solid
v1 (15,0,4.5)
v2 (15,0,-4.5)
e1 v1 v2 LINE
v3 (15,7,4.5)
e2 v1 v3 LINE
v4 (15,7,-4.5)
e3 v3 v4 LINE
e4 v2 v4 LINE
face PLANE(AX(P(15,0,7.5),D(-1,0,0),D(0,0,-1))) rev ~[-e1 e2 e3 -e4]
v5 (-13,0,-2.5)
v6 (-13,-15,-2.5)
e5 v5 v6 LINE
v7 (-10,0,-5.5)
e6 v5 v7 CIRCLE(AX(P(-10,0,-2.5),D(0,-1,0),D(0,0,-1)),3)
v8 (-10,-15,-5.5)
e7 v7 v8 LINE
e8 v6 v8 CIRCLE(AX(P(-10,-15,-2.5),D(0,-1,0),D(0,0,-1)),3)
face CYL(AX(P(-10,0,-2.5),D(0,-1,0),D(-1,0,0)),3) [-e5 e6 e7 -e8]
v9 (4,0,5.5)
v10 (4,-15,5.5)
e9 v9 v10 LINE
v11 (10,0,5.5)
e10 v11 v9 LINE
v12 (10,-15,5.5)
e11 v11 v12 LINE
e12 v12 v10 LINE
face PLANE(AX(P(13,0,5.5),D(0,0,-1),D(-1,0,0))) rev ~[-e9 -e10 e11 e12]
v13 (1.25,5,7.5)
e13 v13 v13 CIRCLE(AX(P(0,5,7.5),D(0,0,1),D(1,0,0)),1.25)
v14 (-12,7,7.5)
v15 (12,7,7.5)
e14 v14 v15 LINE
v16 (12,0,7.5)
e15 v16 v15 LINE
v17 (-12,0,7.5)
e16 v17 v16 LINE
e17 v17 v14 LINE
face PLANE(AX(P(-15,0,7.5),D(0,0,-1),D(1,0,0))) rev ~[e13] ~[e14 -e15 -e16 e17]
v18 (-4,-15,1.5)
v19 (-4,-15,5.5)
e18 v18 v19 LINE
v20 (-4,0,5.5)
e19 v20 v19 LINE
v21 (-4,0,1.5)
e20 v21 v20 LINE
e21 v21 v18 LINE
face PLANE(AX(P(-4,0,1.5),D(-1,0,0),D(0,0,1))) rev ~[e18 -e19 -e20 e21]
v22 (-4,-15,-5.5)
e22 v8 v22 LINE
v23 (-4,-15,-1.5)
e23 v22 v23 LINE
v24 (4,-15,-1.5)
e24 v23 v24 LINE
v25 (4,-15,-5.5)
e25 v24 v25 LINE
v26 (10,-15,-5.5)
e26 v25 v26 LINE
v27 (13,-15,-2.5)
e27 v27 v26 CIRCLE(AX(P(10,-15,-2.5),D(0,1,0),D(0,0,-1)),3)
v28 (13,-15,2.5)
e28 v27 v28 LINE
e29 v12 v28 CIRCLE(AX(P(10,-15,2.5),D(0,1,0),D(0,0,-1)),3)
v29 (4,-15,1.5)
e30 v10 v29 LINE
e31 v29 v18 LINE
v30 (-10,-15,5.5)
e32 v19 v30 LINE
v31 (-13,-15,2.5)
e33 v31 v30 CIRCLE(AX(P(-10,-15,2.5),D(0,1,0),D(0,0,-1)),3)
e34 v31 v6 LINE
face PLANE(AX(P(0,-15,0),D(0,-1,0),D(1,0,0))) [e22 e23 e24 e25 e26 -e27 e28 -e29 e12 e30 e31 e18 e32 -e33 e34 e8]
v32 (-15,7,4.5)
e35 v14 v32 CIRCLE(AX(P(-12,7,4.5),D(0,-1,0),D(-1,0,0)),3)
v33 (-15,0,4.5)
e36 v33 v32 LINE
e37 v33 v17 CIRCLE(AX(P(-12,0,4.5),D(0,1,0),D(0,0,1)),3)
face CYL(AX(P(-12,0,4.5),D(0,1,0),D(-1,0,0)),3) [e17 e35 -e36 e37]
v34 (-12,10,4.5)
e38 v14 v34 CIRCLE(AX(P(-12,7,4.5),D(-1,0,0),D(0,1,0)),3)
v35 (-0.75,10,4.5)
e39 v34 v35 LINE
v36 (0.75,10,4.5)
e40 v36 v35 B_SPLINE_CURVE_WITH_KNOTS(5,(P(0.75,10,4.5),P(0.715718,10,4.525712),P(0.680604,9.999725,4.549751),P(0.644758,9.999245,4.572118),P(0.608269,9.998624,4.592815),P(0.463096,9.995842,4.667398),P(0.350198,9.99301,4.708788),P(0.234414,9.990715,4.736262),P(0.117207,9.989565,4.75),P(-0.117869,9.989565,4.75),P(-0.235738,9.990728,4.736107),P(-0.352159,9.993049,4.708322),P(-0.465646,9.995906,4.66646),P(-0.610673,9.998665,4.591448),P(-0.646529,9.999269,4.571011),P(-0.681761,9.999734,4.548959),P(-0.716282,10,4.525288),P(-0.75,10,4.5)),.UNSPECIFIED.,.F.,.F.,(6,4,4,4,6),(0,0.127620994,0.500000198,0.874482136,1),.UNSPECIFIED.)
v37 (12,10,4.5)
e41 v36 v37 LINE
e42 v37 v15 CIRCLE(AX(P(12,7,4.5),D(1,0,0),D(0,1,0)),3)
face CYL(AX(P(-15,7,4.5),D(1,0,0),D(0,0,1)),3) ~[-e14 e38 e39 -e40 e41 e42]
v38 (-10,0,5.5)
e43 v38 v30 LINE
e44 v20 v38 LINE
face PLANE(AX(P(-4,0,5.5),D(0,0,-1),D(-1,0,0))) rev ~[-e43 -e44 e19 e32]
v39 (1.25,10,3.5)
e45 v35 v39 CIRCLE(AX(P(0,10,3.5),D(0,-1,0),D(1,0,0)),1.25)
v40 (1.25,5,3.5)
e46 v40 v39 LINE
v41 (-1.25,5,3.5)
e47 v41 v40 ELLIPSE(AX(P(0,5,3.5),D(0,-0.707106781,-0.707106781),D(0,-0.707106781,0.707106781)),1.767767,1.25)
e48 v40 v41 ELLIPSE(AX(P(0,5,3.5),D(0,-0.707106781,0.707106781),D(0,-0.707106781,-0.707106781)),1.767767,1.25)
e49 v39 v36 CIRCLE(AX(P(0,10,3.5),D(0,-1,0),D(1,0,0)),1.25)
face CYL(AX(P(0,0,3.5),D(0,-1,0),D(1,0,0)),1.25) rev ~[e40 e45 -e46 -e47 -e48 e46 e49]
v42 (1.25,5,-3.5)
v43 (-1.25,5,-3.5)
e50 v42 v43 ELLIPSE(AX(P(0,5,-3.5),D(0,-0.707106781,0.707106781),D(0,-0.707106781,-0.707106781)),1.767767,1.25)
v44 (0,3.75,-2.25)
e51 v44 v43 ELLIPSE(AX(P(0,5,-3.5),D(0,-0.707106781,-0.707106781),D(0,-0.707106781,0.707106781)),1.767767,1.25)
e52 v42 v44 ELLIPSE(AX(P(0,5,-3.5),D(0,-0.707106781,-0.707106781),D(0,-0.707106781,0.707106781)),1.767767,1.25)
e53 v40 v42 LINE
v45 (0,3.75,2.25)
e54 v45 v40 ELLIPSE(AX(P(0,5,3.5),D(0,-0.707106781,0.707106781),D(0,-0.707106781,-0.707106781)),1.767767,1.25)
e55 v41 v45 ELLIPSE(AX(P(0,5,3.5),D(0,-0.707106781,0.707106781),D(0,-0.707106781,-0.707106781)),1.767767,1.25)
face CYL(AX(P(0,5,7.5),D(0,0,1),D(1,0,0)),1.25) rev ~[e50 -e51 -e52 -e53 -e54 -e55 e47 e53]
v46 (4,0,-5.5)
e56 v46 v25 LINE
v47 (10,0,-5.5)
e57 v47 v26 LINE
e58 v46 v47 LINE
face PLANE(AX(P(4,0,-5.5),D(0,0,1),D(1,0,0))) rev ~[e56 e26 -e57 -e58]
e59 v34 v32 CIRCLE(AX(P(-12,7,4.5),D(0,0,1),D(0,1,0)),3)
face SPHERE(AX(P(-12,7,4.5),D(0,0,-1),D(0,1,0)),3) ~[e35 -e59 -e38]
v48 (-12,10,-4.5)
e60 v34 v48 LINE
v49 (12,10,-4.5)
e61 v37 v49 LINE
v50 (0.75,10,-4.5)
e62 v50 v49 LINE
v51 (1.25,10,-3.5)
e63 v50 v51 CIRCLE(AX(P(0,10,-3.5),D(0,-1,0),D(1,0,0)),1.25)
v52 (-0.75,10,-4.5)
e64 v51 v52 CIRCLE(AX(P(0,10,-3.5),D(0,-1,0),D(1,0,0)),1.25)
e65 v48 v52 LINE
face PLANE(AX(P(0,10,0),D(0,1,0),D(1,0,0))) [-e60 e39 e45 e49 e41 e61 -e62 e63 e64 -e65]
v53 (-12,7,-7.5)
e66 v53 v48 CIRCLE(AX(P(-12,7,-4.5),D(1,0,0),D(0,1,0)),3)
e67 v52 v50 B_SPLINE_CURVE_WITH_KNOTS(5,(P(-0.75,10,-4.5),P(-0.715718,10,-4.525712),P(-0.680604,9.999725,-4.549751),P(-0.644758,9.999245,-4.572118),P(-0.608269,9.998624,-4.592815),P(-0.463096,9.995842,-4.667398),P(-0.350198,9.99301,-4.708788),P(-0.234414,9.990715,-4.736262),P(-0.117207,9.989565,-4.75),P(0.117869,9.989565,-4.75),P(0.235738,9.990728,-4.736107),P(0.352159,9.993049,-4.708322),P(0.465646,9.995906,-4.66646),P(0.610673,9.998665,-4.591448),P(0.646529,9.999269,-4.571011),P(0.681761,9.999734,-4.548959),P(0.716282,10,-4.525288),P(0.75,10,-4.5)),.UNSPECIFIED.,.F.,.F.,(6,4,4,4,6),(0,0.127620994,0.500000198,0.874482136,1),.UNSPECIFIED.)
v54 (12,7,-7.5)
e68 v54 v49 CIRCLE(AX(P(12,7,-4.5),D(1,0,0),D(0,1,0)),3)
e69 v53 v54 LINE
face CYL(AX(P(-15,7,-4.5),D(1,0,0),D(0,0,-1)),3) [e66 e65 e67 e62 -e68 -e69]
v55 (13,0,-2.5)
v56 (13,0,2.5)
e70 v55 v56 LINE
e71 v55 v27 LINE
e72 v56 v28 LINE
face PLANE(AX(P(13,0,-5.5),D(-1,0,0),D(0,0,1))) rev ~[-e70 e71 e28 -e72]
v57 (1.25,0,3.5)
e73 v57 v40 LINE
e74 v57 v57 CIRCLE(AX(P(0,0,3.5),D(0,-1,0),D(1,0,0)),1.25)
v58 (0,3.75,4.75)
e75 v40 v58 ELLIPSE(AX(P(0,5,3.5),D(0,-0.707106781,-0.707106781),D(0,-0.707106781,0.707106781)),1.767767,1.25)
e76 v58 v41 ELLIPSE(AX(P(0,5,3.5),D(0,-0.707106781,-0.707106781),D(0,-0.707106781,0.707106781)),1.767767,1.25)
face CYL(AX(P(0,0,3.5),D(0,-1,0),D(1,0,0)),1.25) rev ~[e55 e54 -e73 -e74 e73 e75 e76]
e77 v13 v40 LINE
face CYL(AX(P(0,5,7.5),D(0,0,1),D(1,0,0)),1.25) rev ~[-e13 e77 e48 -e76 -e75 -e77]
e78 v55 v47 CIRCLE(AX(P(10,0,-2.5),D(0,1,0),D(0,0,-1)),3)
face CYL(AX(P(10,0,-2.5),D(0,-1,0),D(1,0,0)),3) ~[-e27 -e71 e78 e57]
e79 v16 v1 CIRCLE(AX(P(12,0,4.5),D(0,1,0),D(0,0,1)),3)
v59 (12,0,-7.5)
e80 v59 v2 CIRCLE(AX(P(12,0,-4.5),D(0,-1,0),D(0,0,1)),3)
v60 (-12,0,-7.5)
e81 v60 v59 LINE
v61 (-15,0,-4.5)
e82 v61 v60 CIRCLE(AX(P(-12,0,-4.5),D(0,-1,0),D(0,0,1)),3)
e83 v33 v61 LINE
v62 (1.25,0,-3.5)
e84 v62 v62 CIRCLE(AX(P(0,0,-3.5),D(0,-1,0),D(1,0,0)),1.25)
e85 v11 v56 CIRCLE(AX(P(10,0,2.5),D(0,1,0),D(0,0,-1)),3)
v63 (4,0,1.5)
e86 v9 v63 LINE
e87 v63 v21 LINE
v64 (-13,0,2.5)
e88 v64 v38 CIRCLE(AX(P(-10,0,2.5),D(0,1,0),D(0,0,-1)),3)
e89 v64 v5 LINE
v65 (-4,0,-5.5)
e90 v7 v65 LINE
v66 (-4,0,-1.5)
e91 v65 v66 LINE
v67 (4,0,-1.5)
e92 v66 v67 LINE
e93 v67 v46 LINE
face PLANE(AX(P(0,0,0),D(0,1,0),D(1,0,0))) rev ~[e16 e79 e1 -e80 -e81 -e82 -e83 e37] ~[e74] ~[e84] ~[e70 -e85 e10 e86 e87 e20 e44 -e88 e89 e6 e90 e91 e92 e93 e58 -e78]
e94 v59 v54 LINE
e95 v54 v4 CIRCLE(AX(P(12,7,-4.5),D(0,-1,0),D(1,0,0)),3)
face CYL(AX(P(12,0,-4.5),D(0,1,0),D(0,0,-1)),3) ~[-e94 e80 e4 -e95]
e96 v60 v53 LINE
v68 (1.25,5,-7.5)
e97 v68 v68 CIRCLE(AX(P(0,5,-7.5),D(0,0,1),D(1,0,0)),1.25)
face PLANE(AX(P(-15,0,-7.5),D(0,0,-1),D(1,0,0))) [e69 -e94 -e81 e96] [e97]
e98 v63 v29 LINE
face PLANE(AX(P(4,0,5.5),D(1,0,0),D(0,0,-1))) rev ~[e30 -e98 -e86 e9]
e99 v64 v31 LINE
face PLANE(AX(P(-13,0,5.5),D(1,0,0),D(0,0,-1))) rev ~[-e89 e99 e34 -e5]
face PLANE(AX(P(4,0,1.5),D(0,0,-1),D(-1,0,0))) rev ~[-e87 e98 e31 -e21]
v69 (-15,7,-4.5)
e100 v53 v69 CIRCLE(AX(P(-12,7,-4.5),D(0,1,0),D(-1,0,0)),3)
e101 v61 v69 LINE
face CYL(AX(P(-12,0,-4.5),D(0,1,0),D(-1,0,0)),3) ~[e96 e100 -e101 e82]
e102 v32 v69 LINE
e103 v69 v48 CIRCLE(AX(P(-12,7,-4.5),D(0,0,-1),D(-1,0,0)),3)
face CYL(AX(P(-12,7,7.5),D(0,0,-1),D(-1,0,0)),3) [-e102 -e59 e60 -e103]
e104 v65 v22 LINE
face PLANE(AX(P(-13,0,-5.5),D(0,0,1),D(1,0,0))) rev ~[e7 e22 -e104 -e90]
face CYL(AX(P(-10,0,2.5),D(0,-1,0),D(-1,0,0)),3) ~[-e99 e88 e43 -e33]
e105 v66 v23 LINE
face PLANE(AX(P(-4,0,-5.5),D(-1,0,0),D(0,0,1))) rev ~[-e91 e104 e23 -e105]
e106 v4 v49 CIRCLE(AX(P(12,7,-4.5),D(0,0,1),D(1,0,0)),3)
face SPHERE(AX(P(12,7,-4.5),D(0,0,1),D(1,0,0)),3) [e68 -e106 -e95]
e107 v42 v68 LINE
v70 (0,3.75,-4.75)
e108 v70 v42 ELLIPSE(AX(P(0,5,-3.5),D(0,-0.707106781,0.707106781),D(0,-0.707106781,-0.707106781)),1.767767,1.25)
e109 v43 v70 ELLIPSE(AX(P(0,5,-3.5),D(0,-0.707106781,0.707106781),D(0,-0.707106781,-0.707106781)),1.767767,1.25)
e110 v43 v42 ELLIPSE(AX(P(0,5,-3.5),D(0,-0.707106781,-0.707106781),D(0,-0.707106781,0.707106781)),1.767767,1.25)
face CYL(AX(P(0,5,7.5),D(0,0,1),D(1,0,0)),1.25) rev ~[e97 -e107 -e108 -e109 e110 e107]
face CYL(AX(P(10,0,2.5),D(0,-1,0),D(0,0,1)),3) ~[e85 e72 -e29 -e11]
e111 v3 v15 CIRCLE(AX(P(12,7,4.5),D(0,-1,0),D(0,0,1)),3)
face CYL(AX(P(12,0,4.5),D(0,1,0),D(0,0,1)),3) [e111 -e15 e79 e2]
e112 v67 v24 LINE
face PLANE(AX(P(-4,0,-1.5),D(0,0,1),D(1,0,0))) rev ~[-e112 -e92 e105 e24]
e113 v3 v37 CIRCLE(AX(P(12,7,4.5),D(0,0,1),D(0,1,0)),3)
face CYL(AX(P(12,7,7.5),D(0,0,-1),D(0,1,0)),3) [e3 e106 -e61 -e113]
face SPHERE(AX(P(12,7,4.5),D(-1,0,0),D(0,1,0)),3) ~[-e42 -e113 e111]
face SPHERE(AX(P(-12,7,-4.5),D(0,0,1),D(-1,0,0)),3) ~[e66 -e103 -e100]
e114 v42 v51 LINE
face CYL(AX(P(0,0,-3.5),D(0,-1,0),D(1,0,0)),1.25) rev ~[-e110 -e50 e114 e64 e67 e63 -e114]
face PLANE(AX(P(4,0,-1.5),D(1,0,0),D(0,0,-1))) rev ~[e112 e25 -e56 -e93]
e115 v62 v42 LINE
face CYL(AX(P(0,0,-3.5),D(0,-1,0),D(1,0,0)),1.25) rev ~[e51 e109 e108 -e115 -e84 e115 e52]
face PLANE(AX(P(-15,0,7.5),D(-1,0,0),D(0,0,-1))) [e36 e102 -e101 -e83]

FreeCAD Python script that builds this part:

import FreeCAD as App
import Part
import Sketcher

V = App.Vector
Q = App.Units.Quantity


def edges_at(feature, points):
    """Names of the edges that pass closest to the given points."""
    edges = feature.Shape.Edges
    near = lambda p: min(range(len(edges)), key=lambda i: edges[i].distToShape(Part.Vertex(*p))[0])
    return sorted({f"Edge{near(p) + 1}" for p in points})


def add_polygon(sketch, points):
    """Adds a closed chain of lines whose ends are joined by coincident constraints."""
    first, n = sketch.GeometryCount, len(points)
    for a, b in zip(points, points[1:] + points[:1]):
        sketch.addGeometry(Part.LineSegment(App.Vector(*a, 0), App.Vector(*b, 0)), False)
    for i in range(n):
        sketch.addConstraint(Sketcher.Constraint("Coincident", first + i, 2, first + (i + 1) % n, 1))

doc = App.newDocument("Part")
body = doc.addObject("PartDesign::Body", "Body")

# Sketch on XZ plane
sketch1 = body.newObject("Sketcher::SketchObject", "Sketch")
sketch1.AttachmentSupport = (doc.getObject("XZ_Plane"), [""])
sketch1.MapMode = "FlatFace"
add_polygon(sketch1, [(-15, -8), (-15, 8), (15, 8), (15, -8)])  # lines 0-3
sketch1.addConstraint(Sketcher.Constraint("Vertical", 0))
sketch1.addConstraint(Sketcher.Constraint("Horizontal", 1))
sketch1.addConstraint(Sketcher.Constraint("Vertical", 2))
sketch1.addConstraint(Sketcher.Constraint("Horizontal", 3))
sketch1.addConstraint(Sketcher.Constraint("Symmetric", 0, 2, 2, 2, -1, 1))
sketch1.addConstraint(Sketcher.Constraint("DistanceX", 1, 1, 1, 2, Q("30 mm")))
sketch1.addConstraint(Sketcher.Constraint("DistanceY", 0, 1, 0, 2, Q("15 mm")))
pad1 = body.newObject("PartDesign::Pad", "Pad")
pad1.Profile = sketch1
pad1.Length = 10
pad1.Reversed = True

# Sketch on XZ plane
sketch2 = body.newObject("Sketcher::SketchObject", "Sketch001")
sketch2.AttachmentSupport = (doc.getObject("XZ_Plane"), [""])
sketch2.MapMode = "FlatFace"
add_polygon(sketch2, [(-13, -5.5), (-4, -5.5), (-4, -1.5), (4, -1.5), (4, -5.5), (13, -5.5), (13, 5.5), (4, 5.5), (4, 1.5), (-4, 1.5), (-4, 5.5), (-13, 5.5)])  # lines 0-11
sketch2.addConstraint(Sketcher.Constraint("Horizontal", 0))
sketch2.addConstraint(Sketcher.Constraint("Vertical", 1))
sketch2.addConstraint(Sketcher.Constraint("Horizontal", 2))
sketch2.addConstraint(Sketcher.Constraint("Vertical", 3))
sketch2.addConstraint(Sketcher.Constraint("Horizontal", 4))
sketch2.addConstraint(Sketcher.Constraint("Vertical", 5))
sketch2.addConstraint(Sketcher.Constraint("Horizontal", 6))
sketch2.addConstraint(Sketcher.Constraint("Vertical", 7))
sketch2.addConstraint(Sketcher.Constraint("Horizontal", 8))
sketch2.addConstraint(Sketcher.Constraint("Vertical", 9))
sketch2.addConstraint(Sketcher.Constraint("Horizontal", 10))
sketch2.addConstraint(Sketcher.Constraint("Vertical", 11))
sketch2.addConstraint(Sketcher.Constraint("Symmetric", 0, 2, 6, 2, -1, 1))
sketch2.addConstraint(Sketcher.Constraint("Symmetric", 2, 2, 8, 2, -1, 1))
sketch2.addConstraint(Sketcher.Constraint("Symmetric", 4, 2, 10, 2, -1, 1))
sketch2.addConstraint(Sketcher.Constraint("Symmetric", 0, 2, 3, 2, -2))
sketch2.addConstraint(Sketcher.Constraint("DistanceX", 0, 1, 0, 2, Q("9 mm")))
sketch2.addConstraint(Sketcher.Constraint("DistanceX", 2, 1, 2, 2, Q("8 mm")))
sketch2.addConstraint(Sketcher.Constraint("DistanceY", 1, 1, 1, 2, Q("4 mm")))
sketch2.addConstraint(Sketcher.Constraint("DistanceY", 5, 1, 5, 2, Q("11 mm")))
pad2 = body.newObject("PartDesign::Pad", "Pad001")
pad2.Profile = sketch2
pad2.Length = 15
doc.recompute()

fillet = body.newObject("PartDesign::Fillet", "Fillet")
fillet.Base = (pad2, edges_at(pad2, [
    (-15, 10, 0),
    (0, 10, 7.5),
    (13, -7.5, 5.5),
    (-13, -7.5, 5.5),
    (-13, -7.5, -5.5),
    (13, -7.5, -5.5),
    (15, 10, 0),
    (15, 5, 7.5),
    (-15, 5, 7.5),
    (-15, 5, -7.5),
    (15, 5, -7.5),
    (0, 10, -7.5),
]))
fillet.Radius = 3

# Sketch on XZ plane
sketch3 = body.newObject("Sketcher::SketchObject", "Sketch002")
sketch3.AttachmentSupport = (doc.getObject("XZ_Plane"), [""])
sketch3.MapMode = "FlatFace"
sketch3.addGeometry(Part.Circle(V(0, 3.5, 0), V(0, 0, 1), 1.2), False)
sketch3.addGeometry(Part.Circle(V(0, -3.5, 0), V(0, 0, 1), 1.2), False)
sketch3.addConstraint(Sketcher.Constraint("Equal", 0, 1))
sketch3.addConstraint(Sketcher.Constraint("Symmetric", 0, 3, 1, 3, -1, 1))
sketch3.addConstraint(Sketcher.Constraint("PointOnObject", 0, 3, -2))
sketch3.addConstraint(Sketcher.Constraint("Diameter", 0, Q("2.5 mm")))
sketch3.addConstraint(Sketcher.Constraint("DistanceY", 1, 3, 0, 3, Q("7 mm")))
pocket1 = body.newObject("PartDesign::Pocket", "Pocket")
pocket1.Profile = sketch3
pocket1.Type = "ThroughAll"

# Sketch on XY plane
sketch4 = body.newObject("Sketcher::SketchObject", "Sketch003")
sketch4.AttachmentSupport = (doc.getObject("XY_Plane"), [""])
sketch4.MapMode = "FlatFace"
sketch4.AttachmentOffset = App.Placement(V(0, 0, 7.5), App.Rotation())
sketch4.addGeometry(Part.Circle(V(0, 5, 0), V(0, 0, 1), 1.2), False)
sketch4.addConstraint(Sketcher.Constraint("PointOnObject", 0, 3, -2))
sketch4.addConstraint(Sketcher.Constraint("Diameter", 0, Q("2.5 mm")))
sketch4.addConstraint(Sketcher.Constraint("DistanceY", -1, 1, 0, 3, Q("5 mm")))
pocket2 = body.newObject("PartDesign::Pocket", "Pocket001")
pocket2.Profile = sketch4
pocket2.Type = "ThroughAll"

doc.recompute()
